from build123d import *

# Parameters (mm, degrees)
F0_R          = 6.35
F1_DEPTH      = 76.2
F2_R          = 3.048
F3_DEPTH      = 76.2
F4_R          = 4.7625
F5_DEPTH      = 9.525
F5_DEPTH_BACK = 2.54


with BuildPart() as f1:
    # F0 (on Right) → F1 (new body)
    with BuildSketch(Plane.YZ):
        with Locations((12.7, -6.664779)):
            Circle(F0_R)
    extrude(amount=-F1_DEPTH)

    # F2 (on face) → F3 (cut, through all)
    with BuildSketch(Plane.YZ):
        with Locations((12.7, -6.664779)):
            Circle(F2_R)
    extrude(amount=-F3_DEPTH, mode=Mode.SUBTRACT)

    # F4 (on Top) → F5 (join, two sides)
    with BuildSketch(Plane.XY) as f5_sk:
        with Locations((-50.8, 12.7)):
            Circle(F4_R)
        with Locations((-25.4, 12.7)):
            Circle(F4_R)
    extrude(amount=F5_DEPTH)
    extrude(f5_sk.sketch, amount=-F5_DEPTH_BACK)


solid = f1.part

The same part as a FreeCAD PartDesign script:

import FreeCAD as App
import Part
import Sketcher
Q = App.Units.Quantity

doc = App.newDocument("Part")
body = doc.addObject("PartDesign::Body", "Body")

sketch1 = doc.addObject("Sketcher::SketchObject", "Sketch")
body.addObject(sketch1)
sketch1.AttachmentSupport = (doc.YZ_Plane, [""])
sketch1.MapMode = "FlatFace"
sketch1.addGeometry(Part.Circle(App.Vector(13, -7, 0), App.Vector(0, 0, 1), 6), False)
sketch1.addConstraint([
    Sketcher.Constraint("Diameter", 0, Q("0.5 in")),
    Sketcher.Constraint("DistanceX", -1, 1, 0, 3, Q("0.5 in")),
    Sketcher.Constraint("DistanceY", 0, 3, -1, 1, 6.664779),
])
pad1 = doc.addObject("PartDesign::Pad", "Pad")
body.addObject(pad1)
pad1.Profile = sketch1
pad1.Length = Q("3 in")
pad1.Reversed = True

sketch2 = doc.addObject("Sketcher::SketchObject", "Sketch001")
body.addObject(sketch2)
sketch2.AttachmentSupport = (doc.YZ_Plane, [""])
sketch2.MapMode = "FlatFace"
sketch2.addGeometry(Part.Circle(App.Vector(12.7, -6.7, 0), App.Vector(0, 0, 1), 3), False)
sketch2.addConstraint([
    Sketcher.Constraint("Diameter", 0, Q("0.24 in")),
    Sketcher.Constraint("DistanceX", -1, 1, 0, 3, Q("0.5 in")),
    Sketcher.Constraint("DistanceY", 0, 3, -1, 1, 6.664779),
])
pocket1 = doc.addObject("PartDesign::Pocket", "Pocket")
body.addObject(pocket1)
pocket1.Profile = sketch2
pocket1.Type = "ThroughAll"

sketch3 = doc.addObject("Sketcher::SketchObject", "Sketch002")
body.addObject(sketch3)
sketch3.AttachmentSupport = (doc.XY_Plane, [""])
sketch3.MapMode = "FlatFace"
sketch3.addGeometry([
    Part.Circle(App.Vector(-50.8, 12.7, 0), App.Vector(0, 0, 1), 4.8),
    Part.Circle(App.Vector(-25.4, 12.7, 0), App.Vector(0, 0, 1), 4.8),
], False)
sketch3.addConstraint([
    Sketcher.Constraint("Equal", 0, 1),
    Sketcher.Constraint("Horizontal", 0, 3, 1, 3),
    Sketcher.Constraint("Diameter", 0, Q("0.375 in")),
    Sketcher.Constraint("DistanceX", 0, 3, -1, 1, Q("2 in")),
    Sketcher.Constraint("DistanceX", 1, 3, -1, 1, Q("1 in")),
    Sketcher.Constraint("DistanceY", -1, 1, 0, 3, Q("0.5 in")),
])
pad2 = doc.addObject("PartDesign::Pad", "Pad001")
body.addObject(pad2)
pad2.Profile = sketch3
pad2.Type = "TwoLengths"
pad2.Length = Q("0.375 in")
pad2.Length2 = Q("0.1 in")

doc.recompute()
